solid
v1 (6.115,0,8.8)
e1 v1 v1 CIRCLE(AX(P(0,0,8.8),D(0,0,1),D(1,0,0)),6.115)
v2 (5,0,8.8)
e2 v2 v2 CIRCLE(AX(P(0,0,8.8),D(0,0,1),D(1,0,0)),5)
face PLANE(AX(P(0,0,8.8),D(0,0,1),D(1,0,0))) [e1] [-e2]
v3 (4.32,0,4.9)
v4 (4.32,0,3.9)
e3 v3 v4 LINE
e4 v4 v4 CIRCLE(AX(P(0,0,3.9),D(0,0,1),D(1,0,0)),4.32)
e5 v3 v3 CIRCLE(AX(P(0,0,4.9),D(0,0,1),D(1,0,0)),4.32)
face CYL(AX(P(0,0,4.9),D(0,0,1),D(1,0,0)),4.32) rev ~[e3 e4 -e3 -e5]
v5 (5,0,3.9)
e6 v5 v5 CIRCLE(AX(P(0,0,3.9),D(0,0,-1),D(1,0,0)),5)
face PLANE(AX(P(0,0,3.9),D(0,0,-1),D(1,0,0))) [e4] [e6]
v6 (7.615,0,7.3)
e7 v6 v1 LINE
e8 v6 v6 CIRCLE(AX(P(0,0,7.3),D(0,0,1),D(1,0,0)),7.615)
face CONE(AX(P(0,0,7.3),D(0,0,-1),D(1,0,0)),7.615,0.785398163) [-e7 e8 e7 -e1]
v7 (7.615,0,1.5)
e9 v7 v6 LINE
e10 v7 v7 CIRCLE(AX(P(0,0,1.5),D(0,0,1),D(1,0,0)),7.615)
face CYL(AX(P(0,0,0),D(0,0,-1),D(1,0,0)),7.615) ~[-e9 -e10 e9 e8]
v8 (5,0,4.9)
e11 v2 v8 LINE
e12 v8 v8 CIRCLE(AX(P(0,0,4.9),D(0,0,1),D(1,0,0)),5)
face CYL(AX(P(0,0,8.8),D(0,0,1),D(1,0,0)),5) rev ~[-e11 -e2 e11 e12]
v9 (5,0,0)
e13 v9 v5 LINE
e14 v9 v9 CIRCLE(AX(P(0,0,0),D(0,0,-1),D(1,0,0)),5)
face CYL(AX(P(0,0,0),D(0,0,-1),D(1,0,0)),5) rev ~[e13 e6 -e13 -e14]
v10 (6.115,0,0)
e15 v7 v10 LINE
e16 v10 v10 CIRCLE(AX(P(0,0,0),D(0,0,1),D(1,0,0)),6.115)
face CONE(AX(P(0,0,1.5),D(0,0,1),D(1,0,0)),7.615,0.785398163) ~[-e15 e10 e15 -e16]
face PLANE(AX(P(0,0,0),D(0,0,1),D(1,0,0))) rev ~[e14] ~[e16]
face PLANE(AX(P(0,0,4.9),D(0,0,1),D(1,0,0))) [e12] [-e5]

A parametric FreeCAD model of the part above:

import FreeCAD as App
import Part
import Sketcher


def edges_at(feature, points):
    """Names of the edges that pass closest to the given points."""
    edges = feature.Shape.Edges
    near = lambda p: min(range(len(edges)), key=lambda i: edges[i].distToShape(Part.Vertex(*p))[0])
    return sorted({f"Edge{near(p) + 1}" for p in points})

doc = App.newDocument("Part")
body = doc.addObject("PartDesign::Body", "Body")

# Sketch on XY plane
sketch1 = body.newObject("Sketcher::SketchObject", "Sketch")
sketch1.AttachmentSupport = (doc.getObject("XY_Plane"), [""])
sketch1.MapMode = "FlatFace"
sketch1.addGeometry(Part.Circle(App.Vector(0, 0, 0), App.Vector(0, 0, 1), 7.615), False)
sketch1.addConstraint(Sketcher.Constraint("Coincident", 0, 3, -1, 1))
sketch1.addConstraint(Sketcher.Constraint("Diameter", 0, 15.23))
pad1 = body.newObject("PartDesign::Pad", "Pad")
pad1.Profile = sketch1
pad1.Length = 8.8
doc.recompute()

chamfer = body.newObject("PartDesign::Chamfer", "Chamfer")
chamfer.Base = (pad1, edges_at(pad1, [(-7.615, 0, 8.8), (-7.615, 0, 0)]))
chamfer.Size = 1.5

# Sketch on XY plane
sketch2 = body.newObject("Sketcher::SketchObject", "Sketch001")
sketch2.AttachmentSupport = (doc.getObject("XY_Plane"), [""])
sketch2.MapMode = "FlatFace"
sketch2.addGeometry(Part.Circle(App.Vector(0, 0, 0), App.Vector(0, 0, 1), 5), False)
sketch2.addConstraint(Sketcher.Constraint("Coincident", 0, 3, -1, 1))
sketch2.addConstraint(Sketcher.Constraint("Diameter", 0, 10.0))
pocket1 = body.newObject("PartDesign::Pocket", "Pocket")
pocket1.Profile = sketch2
pocket1.Length = 3.9
pocket1.Reversed = True

# Sketch on XY plane
sketch3 = body.newObject("Sketcher::SketchObject", "Sketch002")
sketch3.AttachmentSupport = (doc.getObject("XY_Plane"), [""])
sketch3.MapMode = "FlatFace"
sketch3.AttachmentOffset = App.Placement(App.Vector(0, 0, 8.8), App.Rotation())
sketch3.addGeometry(Part.Circle(App.Vector(0, 0, 0), App.Vector(0, 0, 1), 5), False)
sketch3.addConstraint(Sketcher.Constraint("Coincident", 0, 3, -1, 1))
sketch3.addConstraint(Sketcher.Constraint("Diameter", 0, 10.0))
pocket2 = body.newObject("PartDesign::Pocket", "Pocket001")
pocket2.Profile = sketch3
pocket2.Length = 3.9

# Sketch on XY plane
sketch4 = body.newObject("Sketcher::SketchObject", "Sketch003")
sketch4.AttachmentSupport = (doc.getObject("XY_Plane"), [""])
sketch4.MapMode = "FlatFace"
sketch4.AttachmentOffset = App.Placement(App.Vector(0, 0, 4.9), App.Rotation())
sketch4.addGeometry(Part.Circle(App.Vector(0, 0, 0), App.Vector(0, 0, 1), 4.32), False)
sketch4.addConstraint(Sketcher.Constraint("Coincident", 0, 3, -1, 1))
sketch4.addConstraint(Sketcher.Constraint("Diameter", 0, 8.64))
pocket3 = body.newObject("PartDesign::Pocket", "Pocket002")
pocket3.Profile = sketch4
pocket3.Length = 25

doc.recompute()
